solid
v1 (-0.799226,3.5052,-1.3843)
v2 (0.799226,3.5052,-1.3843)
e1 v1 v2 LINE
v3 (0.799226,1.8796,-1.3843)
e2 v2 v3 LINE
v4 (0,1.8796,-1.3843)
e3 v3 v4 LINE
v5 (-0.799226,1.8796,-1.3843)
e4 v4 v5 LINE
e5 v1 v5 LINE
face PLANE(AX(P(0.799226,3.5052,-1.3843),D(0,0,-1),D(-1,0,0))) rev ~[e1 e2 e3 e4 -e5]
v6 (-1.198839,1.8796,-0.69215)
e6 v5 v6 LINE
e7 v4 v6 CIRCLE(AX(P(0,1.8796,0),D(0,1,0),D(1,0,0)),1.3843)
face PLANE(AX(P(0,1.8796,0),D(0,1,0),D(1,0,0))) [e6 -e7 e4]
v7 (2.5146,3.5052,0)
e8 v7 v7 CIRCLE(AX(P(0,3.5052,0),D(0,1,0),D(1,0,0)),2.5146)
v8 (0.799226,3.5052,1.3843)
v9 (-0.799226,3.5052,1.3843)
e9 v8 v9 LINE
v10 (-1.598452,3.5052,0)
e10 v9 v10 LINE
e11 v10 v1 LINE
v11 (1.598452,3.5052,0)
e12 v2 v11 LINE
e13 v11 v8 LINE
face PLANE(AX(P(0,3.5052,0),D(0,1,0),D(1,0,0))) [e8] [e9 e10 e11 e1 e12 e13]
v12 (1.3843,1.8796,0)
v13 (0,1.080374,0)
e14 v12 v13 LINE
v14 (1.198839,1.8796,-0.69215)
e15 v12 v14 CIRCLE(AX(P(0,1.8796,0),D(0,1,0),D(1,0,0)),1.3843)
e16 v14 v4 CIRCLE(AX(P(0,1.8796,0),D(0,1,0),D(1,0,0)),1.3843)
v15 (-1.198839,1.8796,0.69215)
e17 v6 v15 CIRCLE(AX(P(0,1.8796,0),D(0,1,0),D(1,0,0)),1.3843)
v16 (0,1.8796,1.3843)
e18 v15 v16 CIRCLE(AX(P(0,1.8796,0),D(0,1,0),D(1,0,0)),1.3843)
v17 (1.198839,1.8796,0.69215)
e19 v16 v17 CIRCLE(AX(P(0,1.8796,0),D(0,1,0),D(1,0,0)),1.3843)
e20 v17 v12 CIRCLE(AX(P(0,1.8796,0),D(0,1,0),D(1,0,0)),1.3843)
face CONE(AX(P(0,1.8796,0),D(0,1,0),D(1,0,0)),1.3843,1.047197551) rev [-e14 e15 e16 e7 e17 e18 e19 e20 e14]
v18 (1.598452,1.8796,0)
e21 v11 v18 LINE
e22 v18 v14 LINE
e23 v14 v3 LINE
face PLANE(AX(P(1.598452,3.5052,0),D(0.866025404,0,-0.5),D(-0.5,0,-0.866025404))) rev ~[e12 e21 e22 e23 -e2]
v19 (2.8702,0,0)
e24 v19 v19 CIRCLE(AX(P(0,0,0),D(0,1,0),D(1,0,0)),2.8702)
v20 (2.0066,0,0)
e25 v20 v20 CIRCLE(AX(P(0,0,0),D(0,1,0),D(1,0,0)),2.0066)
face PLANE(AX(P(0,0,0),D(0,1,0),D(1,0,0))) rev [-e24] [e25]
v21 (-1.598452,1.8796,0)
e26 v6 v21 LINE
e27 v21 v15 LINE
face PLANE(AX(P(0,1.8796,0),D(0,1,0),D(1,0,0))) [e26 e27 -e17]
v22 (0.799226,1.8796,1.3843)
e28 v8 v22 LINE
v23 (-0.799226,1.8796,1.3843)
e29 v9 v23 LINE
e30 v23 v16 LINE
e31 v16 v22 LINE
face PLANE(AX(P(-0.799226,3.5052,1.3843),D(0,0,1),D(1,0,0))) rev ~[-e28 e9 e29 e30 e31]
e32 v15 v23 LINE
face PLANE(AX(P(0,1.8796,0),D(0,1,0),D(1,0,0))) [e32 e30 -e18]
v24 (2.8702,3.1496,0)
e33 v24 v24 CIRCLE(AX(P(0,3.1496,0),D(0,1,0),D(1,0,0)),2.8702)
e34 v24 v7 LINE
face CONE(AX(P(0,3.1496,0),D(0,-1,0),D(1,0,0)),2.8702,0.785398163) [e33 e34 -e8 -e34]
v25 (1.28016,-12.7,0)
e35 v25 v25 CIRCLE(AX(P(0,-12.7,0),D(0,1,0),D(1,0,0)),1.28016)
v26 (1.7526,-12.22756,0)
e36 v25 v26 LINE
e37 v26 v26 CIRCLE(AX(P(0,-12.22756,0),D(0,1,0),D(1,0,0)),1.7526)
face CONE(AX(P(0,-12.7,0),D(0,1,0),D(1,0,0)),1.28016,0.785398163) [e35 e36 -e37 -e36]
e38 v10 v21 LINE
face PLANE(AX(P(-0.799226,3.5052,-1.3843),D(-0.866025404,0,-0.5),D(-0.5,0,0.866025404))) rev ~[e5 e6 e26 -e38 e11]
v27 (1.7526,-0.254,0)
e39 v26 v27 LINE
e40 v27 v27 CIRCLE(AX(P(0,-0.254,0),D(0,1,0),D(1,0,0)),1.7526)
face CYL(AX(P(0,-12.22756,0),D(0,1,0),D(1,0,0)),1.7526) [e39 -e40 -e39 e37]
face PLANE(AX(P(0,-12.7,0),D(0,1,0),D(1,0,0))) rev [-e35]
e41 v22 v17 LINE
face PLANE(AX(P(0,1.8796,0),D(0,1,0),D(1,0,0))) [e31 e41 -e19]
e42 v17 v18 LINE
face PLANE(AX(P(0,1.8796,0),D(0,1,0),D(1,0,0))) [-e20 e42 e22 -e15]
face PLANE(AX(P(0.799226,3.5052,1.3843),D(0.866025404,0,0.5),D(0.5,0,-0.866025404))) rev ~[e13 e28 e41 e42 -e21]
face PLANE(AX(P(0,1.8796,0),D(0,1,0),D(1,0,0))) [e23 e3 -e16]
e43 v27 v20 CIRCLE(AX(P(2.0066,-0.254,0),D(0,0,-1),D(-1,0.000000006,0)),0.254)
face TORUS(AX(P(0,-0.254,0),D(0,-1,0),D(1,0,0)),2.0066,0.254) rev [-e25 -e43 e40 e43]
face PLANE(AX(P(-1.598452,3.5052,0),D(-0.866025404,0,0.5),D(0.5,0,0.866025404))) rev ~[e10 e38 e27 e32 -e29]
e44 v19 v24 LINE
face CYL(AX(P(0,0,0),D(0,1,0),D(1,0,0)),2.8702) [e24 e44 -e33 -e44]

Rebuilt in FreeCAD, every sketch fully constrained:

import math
import FreeCAD as App
import Part
import Sketcher
Q = App.Units.Quantity

doc = App.newDocument("Part")
body = doc.addObject("PartDesign::Body", "Body")

# Sketch on XY plane
sketch1 = doc.addObject("Sketcher::SketchObject", "Sketch")
body.addObject(sketch1)
sketch1.AttachmentSupport = (doc.XY_Plane, [""])
sketch1.MapMode = "FlatFace"
sketch1.addGeometry([
    Part.LineSegment(App.Vector(0, 1.080374, 0), App.Vector(0, -12.7, 0)),  # 0
    Part.LineSegment(App.Vector(0, -12.7, 0), App.Vector(1.28016, -12.7, 0)),  # 1
    Part.LineSegment(App.Vector(1.28016, -12.7, 0), App.Vector(1.7526, -12.22756, 0)),  # 2
    Part.LineSegment(App.Vector(1.7526, -12.22756, 0), App.Vector(1.7526, -0.254, 0)),  # 3
    Part.ArcOfCircle(Part.Circle(App.Vector(2.0066, -0.254, 0), App.Vector(0, 0, 1), 0.254), math.radians(90), math.radians(180)),  # 4
    Part.LineSegment(App.Vector(2.0066, 0, 0), App.Vector(2.8702, 0, 0)),  # 5
    Part.LineSegment(App.Vector(2.8702, 0, 0), App.Vector(2.8702, 3.1496, 0)),  # 6
    Part.LineSegment(App.Vector(2.8702, 3.1496, 0), App.Vector(2.5146, 3.5052, 0)),  # 7
    Part.LineSegment(App.Vector(2.5146, 3.5052, 0), App.Vector(1.3843, 3.5052, 0)),  # 8
    Part.LineSegment(App.Vector(1.3843, 3.5052, 0), App.Vector(1.3843, 1.8796, 0)),  # 9
    Part.LineSegment(App.Vector(1.3843, 1.8796, 0), App.Vector(0, 1.080374, 0)),  # 10
], False)
sketch1.addConstraint([
    Sketcher.Constraint("Coincident", 0, 2, 1, 1),
    Sketcher.Constraint("Coincident", 1, 2, 2, 1),
    Sketcher.Constraint("Coincident", 2, 2, 3, 1),
    Sketcher.Constraint("Tangent", 3, 2, 4, 2),
    Sketcher.Constraint("Tangent", 4, 1, 5, 1),
    Sketcher.Constraint("Coincident", 5, 2, 6, 1),
    Sketcher.Constraint("Coincident", 6, 2, 7, 1),
    Sketcher.Constraint("Coincident", 7, 2, 8, 1),
    Sketcher.Constraint("Coincident", 8, 2, 9, 1),
    Sketcher.Constraint("Coincident", 9, 2, 10, 1),
    Sketcher.Constraint("Coincident", 10, 2, 0, 1),
    Sketcher.Constraint("Vertical", 0),
    Sketcher.Constraint("Horizontal", 1),
    Sketcher.Constraint("Vertical", 3),
    Sketcher.Constraint("Horizontal", 5),
    Sketcher.Constraint("Vertical", 6),
    Sketcher.Constraint("Horizontal", 8),
    Sketcher.Constraint("Vertical", 9),
    Sketcher.Constraint("PointOnObject", 0, 2, -2),
    Sketcher.Constraint("PointOnObject", 4, 1, -1),
    Sketcher.Constraint("Perpendicular", 2, 7),
    Sketcher.Constraint("Radius", 4, Q("0.01 in")),
    Sketcher.Constraint("Angle", 2, Q("45 deg")),
    Sketcher.Constraint("Angle", 10, Q("-150 deg")),
    Sketcher.Constraint("DistanceY", 0, 2, -1, 1, Q("0.5 in")),
    Sketcher.Constraint("DistanceX", 5, 1, 5, 2, Q("0.034 in")),
    Sketcher.Constraint("DistanceY", 6, 1, 6, 2, Q("0.124 in")),
    Sketcher.Constraint("DistanceY", 9, 2, 9, 1, Q("0.064 in")),
    Sketcher.Constraint("DistanceX", 4, 1, 7, 2, Q("0.02 in")),
    Sketcher.Constraint("DistanceX", 1, 1, 1, 2, Q("0.0504 in")),
    Sketcher.Constraint("DistanceX", 8, 2, 8, 1, Q("0.0445 in")),
    Sketcher.Constraint("DistanceY", 3, 1, 3, 2, Q("0.4714 in")),
])
revolution = doc.addObject("PartDesign::Revolution", "Revolution")
body.addObject(revolution)
revolution.Profile = sketch1
revolution.ReferenceAxis = (sketch1, ["V_Axis"])
revolution.Angle = 360

# Sketch on XZ plane
sketch2 = doc.addObject("Sketcher::SketchObject", "Sketch001")
body.addObject(sketch2)
sketch2.AttachmentSupport = (doc.XZ_Plane, [""])
sketch2.MapMode = "FlatFace"
sketch2.AttachmentOffset = App.Placement(App.Vector(0, 0, -0.138 * 25.4), App.Rotation())
sketch2.addGeometry([
    Part.LineSegment(App.Vector(-1.598452, 0, 0), App.Vector(-0.799226, 1.3843, 0)),  # 0
    Part.LineSegment(App.Vector(-0.799226, 1.3843, 0), App.Vector(0.799226, 1.3843, 0)),  # 1
    Part.LineSegment(App.Vector(0.799226, 1.3843, 0), App.Vector(1.598452, 0, 0)),  # 2
    Part.LineSegment(App.Vector(1.598452, 0, 0), App.Vector(0.799226, -1.3843, 0)),  # 3
    Part.LineSegment(App.Vector(0.799226, -1.3843, 0), App.Vector(-0.799226, -1.3843, 0)),  # 4
    Part.LineSegment(App.Vector(-0.799226, -1.3843, 0), App.Vector(-1.598452, 0, 0)),  # 5
], False)
sketch2.addConstraint([
    Sketcher.Constraint("Coincident", 0, 2, 1, 1),
    Sketcher.Constraint("Coincident", 1, 2, 2, 1),
    Sketcher.Constraint("Coincident", 2, 2, 3, 1),
    Sketcher.Constraint("Coincident", 3, 2, 4, 1),
    Sketcher.Constraint("Coincident", 4, 2, 5, 1),
    Sketcher.Constraint("Coincident", 5, 2, 0, 1),
    Sketcher.Constraint("Horizontal", 1),
    Sketcher.Constraint("Horizontal", 4),
    Sketcher.Constraint("Symmetric", 0, 2, 3, 2, -1, 1),
    Sketcher.Constraint("Symmetric", 2, 2, 5, 2, -1, 1),
    Sketcher.Constraint("PointOnObject", 2, 2, -1),
    Sketcher.Constraint("Parallel", 2, 5),
    Sketcher.Constraint("Vertical", 1, 2, 3, 2),
    Sketcher.Constraint("Angle", 0, Q("60 deg")),
    Sketcher.Constraint("DistanceY", 3, 2, 1, 2, Q("0.109 in")),
    Sketcher.Constraint("DistanceX", 1, 1, 1, 2, Q("1.598452 mm")),
])
pocket1 = doc.addObject("PartDesign::Pocket", "Pocket")
body.addObject(pocket1)
pocket1.Profile = sketch2
pocket1.Length = Q("0.064 in")
pocket1.Reversed = True

doc.recompute()
